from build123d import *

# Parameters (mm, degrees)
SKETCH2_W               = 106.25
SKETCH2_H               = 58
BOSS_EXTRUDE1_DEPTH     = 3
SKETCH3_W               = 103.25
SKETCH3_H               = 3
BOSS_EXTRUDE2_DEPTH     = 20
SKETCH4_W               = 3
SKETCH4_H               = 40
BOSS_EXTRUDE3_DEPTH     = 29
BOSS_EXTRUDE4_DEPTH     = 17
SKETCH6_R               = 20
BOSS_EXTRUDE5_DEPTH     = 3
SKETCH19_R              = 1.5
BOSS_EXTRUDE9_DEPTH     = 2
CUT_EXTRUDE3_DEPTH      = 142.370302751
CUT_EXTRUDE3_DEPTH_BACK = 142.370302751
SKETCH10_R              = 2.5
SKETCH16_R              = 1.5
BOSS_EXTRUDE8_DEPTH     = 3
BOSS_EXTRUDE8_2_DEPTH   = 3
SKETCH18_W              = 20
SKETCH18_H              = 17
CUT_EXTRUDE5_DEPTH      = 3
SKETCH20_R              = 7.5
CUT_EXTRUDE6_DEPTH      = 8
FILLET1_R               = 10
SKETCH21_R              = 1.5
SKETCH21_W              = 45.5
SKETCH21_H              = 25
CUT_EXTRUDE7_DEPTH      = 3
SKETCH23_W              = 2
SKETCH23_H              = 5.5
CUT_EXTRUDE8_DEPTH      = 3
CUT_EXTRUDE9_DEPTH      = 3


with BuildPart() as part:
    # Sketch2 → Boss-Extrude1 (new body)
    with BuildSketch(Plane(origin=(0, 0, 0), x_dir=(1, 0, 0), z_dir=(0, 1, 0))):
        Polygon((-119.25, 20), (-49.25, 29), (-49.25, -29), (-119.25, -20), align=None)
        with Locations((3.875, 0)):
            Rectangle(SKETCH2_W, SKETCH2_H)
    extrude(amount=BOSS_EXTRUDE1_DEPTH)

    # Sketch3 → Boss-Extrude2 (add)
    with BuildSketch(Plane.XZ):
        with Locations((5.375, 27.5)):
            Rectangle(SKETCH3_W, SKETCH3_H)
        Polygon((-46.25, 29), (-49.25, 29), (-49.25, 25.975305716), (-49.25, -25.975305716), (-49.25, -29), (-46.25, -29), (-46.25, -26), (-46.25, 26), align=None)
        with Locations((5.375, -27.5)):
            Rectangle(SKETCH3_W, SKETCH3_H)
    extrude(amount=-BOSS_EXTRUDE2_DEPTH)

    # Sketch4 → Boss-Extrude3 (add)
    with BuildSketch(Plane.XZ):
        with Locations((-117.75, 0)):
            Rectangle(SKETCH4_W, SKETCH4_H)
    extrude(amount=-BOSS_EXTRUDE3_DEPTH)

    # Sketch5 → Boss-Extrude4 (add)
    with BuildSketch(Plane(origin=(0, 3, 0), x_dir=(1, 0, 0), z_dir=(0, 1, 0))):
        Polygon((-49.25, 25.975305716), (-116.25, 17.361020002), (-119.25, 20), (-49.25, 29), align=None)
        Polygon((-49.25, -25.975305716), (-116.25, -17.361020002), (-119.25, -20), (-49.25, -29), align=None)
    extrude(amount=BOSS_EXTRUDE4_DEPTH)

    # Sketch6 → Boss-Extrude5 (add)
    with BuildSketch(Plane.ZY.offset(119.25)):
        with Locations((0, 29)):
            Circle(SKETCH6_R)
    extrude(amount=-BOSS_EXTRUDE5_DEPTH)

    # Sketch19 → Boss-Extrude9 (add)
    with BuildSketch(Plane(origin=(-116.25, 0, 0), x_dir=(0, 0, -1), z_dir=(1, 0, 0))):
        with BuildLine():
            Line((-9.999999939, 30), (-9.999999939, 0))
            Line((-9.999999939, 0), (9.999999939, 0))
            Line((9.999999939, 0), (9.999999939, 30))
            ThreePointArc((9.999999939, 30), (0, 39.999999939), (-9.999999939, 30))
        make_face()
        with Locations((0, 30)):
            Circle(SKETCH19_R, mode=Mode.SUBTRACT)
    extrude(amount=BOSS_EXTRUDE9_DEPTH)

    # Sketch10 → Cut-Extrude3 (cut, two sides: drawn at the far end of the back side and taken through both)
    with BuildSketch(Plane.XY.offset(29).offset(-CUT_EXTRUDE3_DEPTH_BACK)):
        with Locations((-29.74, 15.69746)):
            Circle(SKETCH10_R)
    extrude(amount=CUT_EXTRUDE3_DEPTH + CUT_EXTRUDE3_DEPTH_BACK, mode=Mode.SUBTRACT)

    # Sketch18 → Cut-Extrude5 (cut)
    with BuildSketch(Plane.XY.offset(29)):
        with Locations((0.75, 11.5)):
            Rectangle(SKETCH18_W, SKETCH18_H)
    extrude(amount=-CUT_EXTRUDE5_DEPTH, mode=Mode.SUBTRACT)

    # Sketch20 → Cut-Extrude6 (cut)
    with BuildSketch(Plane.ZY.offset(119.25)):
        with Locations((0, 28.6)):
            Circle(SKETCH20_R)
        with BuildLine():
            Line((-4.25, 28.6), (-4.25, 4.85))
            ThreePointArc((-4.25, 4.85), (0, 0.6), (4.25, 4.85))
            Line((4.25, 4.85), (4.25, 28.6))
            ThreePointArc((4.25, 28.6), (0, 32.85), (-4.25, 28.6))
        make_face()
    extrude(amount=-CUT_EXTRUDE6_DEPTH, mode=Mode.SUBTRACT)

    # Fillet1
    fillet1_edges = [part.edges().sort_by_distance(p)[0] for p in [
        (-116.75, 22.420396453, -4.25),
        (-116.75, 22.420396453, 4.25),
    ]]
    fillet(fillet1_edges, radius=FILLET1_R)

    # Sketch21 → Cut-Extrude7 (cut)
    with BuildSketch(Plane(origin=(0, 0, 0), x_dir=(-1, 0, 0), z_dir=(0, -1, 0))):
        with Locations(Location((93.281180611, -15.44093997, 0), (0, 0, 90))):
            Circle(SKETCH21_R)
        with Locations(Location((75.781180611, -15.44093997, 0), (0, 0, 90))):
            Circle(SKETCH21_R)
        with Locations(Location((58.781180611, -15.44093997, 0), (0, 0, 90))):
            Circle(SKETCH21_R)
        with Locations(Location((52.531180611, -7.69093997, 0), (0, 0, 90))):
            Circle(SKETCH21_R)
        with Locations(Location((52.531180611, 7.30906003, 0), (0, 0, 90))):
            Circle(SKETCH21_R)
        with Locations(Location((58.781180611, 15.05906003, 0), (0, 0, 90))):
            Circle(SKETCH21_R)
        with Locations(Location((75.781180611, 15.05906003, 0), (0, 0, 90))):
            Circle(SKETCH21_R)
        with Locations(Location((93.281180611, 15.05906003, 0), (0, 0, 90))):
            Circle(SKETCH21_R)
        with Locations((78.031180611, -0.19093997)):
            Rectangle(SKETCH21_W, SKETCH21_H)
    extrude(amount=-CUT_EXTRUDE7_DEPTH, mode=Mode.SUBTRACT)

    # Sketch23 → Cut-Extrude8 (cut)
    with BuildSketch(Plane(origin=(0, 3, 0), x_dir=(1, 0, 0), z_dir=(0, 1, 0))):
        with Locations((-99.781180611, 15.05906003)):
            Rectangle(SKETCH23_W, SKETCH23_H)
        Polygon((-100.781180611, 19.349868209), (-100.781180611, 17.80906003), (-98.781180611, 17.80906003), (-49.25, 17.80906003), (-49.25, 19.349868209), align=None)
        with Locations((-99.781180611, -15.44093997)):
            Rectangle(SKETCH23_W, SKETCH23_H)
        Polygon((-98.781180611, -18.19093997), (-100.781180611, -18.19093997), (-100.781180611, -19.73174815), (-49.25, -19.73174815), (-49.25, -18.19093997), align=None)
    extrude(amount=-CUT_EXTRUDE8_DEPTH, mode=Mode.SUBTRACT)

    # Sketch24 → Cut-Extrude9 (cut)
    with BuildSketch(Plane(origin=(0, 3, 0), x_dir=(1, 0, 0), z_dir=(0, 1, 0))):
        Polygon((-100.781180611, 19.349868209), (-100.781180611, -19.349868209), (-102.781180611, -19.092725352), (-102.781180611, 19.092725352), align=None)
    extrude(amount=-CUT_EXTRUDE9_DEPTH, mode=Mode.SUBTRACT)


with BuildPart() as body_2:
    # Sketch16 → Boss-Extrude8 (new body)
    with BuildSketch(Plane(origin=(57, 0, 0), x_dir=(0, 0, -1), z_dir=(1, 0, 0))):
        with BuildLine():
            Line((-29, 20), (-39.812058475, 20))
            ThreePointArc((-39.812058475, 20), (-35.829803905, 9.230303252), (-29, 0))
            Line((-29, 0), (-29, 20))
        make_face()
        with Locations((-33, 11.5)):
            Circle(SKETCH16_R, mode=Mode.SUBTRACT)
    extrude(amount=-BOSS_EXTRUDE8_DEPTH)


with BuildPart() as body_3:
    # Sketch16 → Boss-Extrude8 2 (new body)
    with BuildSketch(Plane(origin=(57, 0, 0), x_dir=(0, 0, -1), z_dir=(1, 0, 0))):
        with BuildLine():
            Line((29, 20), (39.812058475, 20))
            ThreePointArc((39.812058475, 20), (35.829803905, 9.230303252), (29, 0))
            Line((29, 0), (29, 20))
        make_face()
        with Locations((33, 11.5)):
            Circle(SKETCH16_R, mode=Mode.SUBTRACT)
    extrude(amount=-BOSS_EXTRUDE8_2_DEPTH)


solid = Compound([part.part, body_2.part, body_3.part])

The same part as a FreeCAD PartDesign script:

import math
import FreeCAD as App
import Part
import Sketcher

V = App.Vector


def edges_at(feature, points):
    """Names of the edges that pass closest to the given points."""
    edges = feature.Shape.Edges
    near = lambda p: min(range(len(edges)), key=lambda i: edges[i].distToShape(Part.Vertex(*p))[0])
    return sorted({f"Edge{near(p) + 1}" for p in points})

doc = App.newDocument("Part")
body = doc.addObject("PartDesign::Body", "Body")

# Sketch on XZ plane
sketch1 = body.newObject("Sketcher::SketchObject", "Sketch")
sketch1.AttachmentSupport = (doc.getObject("XZ_Plane"), [""])
sketch1.MapMode = "FlatFace"
sketch1.addGeometry([
    Part.LineSegment(V(-49.25, -29, 0), V(-119.25, -20, 0)),  # 0
    Part.LineSegment(V(-119.25, -20, 0), V(-119.25, 20, 0)),  # 1
    Part.LineSegment(V(-119.25, 20, 0), V(-49.25, 29, 0)),  # 2
    Part.LineSegment(V(-49.25, 29, 0), V(57, 29, 0)),  # 3
    Part.LineSegment(V(57, 29, 0), V(57, -29, 0)),  # 4
    Part.LineSegment(V(57, -29, 0), V(-49.25, -29, 0)),  # 5
], False)
sketch1.addConstraint([
    Sketcher.Constraint("Coincident", 0, 2, 1, 1),
    Sketcher.Constraint("Coincident", 1, 2, 2, 1),
    Sketcher.Constraint("Coincident", 2, 2, 3, 1),
    Sketcher.Constraint("Coincident", 3, 2, 4, 1),
    Sketcher.Constraint("Coincident", 4, 2, 5, 1),
    Sketcher.Constraint("Coincident", 5, 2, 0, 1),
    Sketcher.Constraint("Vertical", 1),
    Sketcher.Constraint("Horizontal", 3),
    Sketcher.Constraint("Vertical", 4),
    Sketcher.Constraint("Horizontal", 5),
    Sketcher.Constraint("Symmetric", 2, 2, 5, 2, -1),
    Sketcher.Constraint("Equal", 0, 2),
    Sketcher.Constraint("DistanceY", 1, 1, 1, 2, 40.0),
    Sketcher.Constraint("DistanceY", 4, 2, 4, 1, 58.0),
    Sketcher.Constraint("DistanceX", -1, 1, 3, 2, 57.0),
    Sketcher.Constraint("DistanceX", 1, 2, 2, 2, 70.0),
    Sketcher.Constraint("DistanceX", 3, 1, 3, 2, 106.25),
])
pad1 = body.newObject("PartDesign::Pad", "Pad")
pad1.Profile = sketch1
pad1.Length = 3
pad1.Reversed = True

# Sketch on XZ plane
sketch2 = body.newObject("Sketcher::SketchObject", "Sketch001")
sketch2.AttachmentSupport = (doc.getObject("XZ_Plane"), [""])
sketch2.MapMode = "FlatFace"
sketch2.addGeometry([
    Part.LineSegment(V(-46.25, 26, 0), V(57, 26, 0)),  # 0
    Part.LineSegment(V(57, 26, 0), V(57, 29, 0)),  # 1
    Part.LineSegment(V(57, 29, 0), V(-49.25, 29, 0)),  # 2
    Part.LineSegment(V(-49.25, 29, 0), V(-49.25, -29, 0)),  # 3
    Part.LineSegment(V(-49.25, -29, 0), V(57, -29, 0)),  # 4
    Part.LineSegment(V(57, -29, 0), V(57, -26, 0)),  # 5
    Part.LineSegment(V(57, -26, 0), V(-46.25, -26, 0)),  # 6
    Part.LineSegment(V(-46.25, -26, 0), V(-46.25, 26, 0)),  # 7
], False)
sketch2.addConstraint([
    Sketcher.Constraint("Coincident", 0, 2, 1, 1),
    Sketcher.Constraint("Coincident", 1, 2, 2, 1),
    Sketcher.Constraint("Coincident", 2, 2, 3, 1),
    Sketcher.Constraint("Coincident", 3, 2, 4, 1),
    Sketcher.Constraint("Coincident", 4, 2, 5, 1),
    Sketcher.Constraint("Coincident", 5, 2, 6, 1),
    Sketcher.Constraint("Coincident", 6, 2, 7, 1),
    Sketcher.Constraint("Coincident", 7, 2, 0, 1),
    Sketcher.Constraint("Horizontal", 0),
    Sketcher.Constraint("Vertical", 1),
    Sketcher.Constraint("Horizontal", 2),
    Sketcher.Constraint("Vertical", 3),
    Sketcher.Constraint("Horizontal", 4),
    Sketcher.Constraint("Vertical", 5),
    Sketcher.Constraint("Horizontal", 6),
    Sketcher.Constraint("Vertical", 7),
    Sketcher.Constraint("Symmetric", 1, 2, 4, 2, -1),
    Sketcher.Constraint("Equal", 1, 5),
    Sketcher.Constraint("DistanceY", 1, 1, 1, 2, 3.0),
    Sketcher.Constraint("DistanceY", 3, 2, 3, 1, 58.0),
    Sketcher.Constraint("DistanceX", -1, 1, 0, 2, 57.0),
    Sketcher.Constraint("DistanceX", 3, 2, 6, 2, 3.0),
    Sketcher.Constraint("DistanceX", 0, 1, 0, 2, 103.25),
])
pad2 = body.newObject("PartDesign::Pad", "Pad001")
pad2.Profile = sketch2
pad2.Length = 20
pad2.Reversed = True

# Sketch on XZ plane
sketch3 = body.newObject("Sketcher::SketchObject", "Sketch002")
sketch3.AttachmentSupport = (doc.getObject("XZ_Plane"), [""])
sketch3.MapMode = "FlatFace"
sketch3.addGeometry([
    Part.LineSegment(V(-119.25, 20, 0), V(-119.25, -20, 0)),
    Part.LineSegment(V(-119.25, -20, 0), V(-116.25, -20, 0)),
    Part.LineSegment(V(-116.25, -20, 0), V(-116.25, 20, 0)),
    Part.LineSegment(V(-116.25, 20, 0), V(-119.25, 20, 0)),
], False)
sketch3.addConstraint([
    Sketcher.Constraint("Coincident", 0, 2, 1, 1),
    Sketcher.Constraint("Coincident", 1, 2, 2, 1),
    Sketcher.Constraint("Coincident", 2, 2, 3, 1),
    Sketcher.Constraint("Coincident", 3, 2, 0, 1),
    Sketcher.Constraint("Vertical", 0),
    Sketcher.Constraint("Horizontal", 1),
    Sketcher.Constraint("Vertical", 2),
    Sketcher.Constraint("Horizontal", 3),
    Sketcher.Constraint("DistanceX", 1, 1, 1, 2, 3.0),
    Sketcher.Constraint("DistanceY", 0, 2, 0, 1, 40.0),
    Sketcher.Constraint("DistanceY", 0, 2, -1, 1, 20.0),
    Sketcher.Constraint("DistanceX", 0, 2, -1, 1, 119.25),
])
pad3 = body.newObject("PartDesign::Pad", "Pad002")
pad3.Profile = sketch3
pad3.Length = 29
pad3.Reversed = True

# Sketch on XZ plane
sketch4 = body.newObject("Sketcher::SketchObject", "Sketch003")
sketch4.AttachmentSupport = (doc.getObject("XZ_Plane"), [""])
sketch4.MapMode = "FlatFace"
sketch4.AttachmentOffset = App.Placement(V(0, 0, -3), App.Rotation())
sketch4.addGeometry([
    Part.LineSegment(V(-116.25, -17.36102, 0), V(-49.25, -25.975306, 0)),  # 0
    Part.LineSegment(V(-49.25, -25.975306, 0), V(-49.25, -29, 0)),  # 1
    Part.LineSegment(V(-49.25, -29, 0), V(-119.25, -20, 0)),  # 2
    Part.LineSegment(V(-119.25, -20, 0), V(-116.25, -17.36102, 0)),  # 3
    Part.LineSegment(V(-49.25, 25.975306, 0), V(-116.25, 17.36102, 0)),  # 4
    Part.LineSegment(V(-116.25, 17.36102, 0), V(-119.25, 20, 0)),  # 5
    Part.LineSegment(V(-119.25, 20, 0), V(-49.25, 29, 0)),  # 6
    Part.LineSegment(V(-49.25, 29, 0), V(-49.25, 25.975306, 0)),  # 7
], False)
sketch4.addConstraint([
    Sketcher.Constraint("Coincident", 0, 2, 1, 1),
    Sketcher.Constraint("Coincident", 1, 2, 2, 1),
    Sketcher.Constraint("Coincident", 2, 2, 3, 1),
    Sketcher.Constraint("Coincident", 3, 2, 0, 1),
    Sketcher.Constraint("Coincident", 4, 2, 5, 1),
    Sketcher.Constraint("Coincident", 5, 2, 6, 1),
    Sketcher.Constraint("Coincident", 6, 2, 7, 1),
    Sketcher.Constraint("Coincident", 7, 2, 4, 1),
    Sketcher.Constraint("Vertical", 1),
    Sketcher.Constraint("Vertical", 7),
    Sketcher.Constraint("Symmetric", 3, 2, 4, 2, -1),
    Sketcher.Constraint("Symmetric", 2, 2, 5, 2, -1),
    Sketcher.Constraint("Symmetric", 1, 2, 6, 2, -1),
    Sketcher.Constraint("Parallel", 0, 2),
    Sketcher.Constraint("Parallel", 4, 6),
    Sketcher.Constraint("DistanceY", 1, 2, -1, 1, 29.0),
    Sketcher.Constraint("DistanceY", 2, 2, -1, 1, 20.0),
    Sketcher.Constraint("DistanceX", 2, 2, 0, 2, 70.0),
    Sketcher.Constraint("DistanceX", 2, 2, 3, 2, 3.0),
    Sketcher.Constraint("DistanceX", 0, 2, -1, 1, 49.25),
    Sketcher.Constraint("DistanceY", 1, 2, 1, 1, 3.024694),
])
pad4 = body.newObject("PartDesign::Pad", "Pad003")
pad4.Profile = sketch4
pad4.Length = 17
pad4.Reversed = True

# Sketch on YZ plane
sketch5 = body.newObject("Sketcher::SketchObject", "Sketch004")
sketch5.AttachmentSupport = (doc.getObject("YZ_Plane"), [""])
sketch5.MapMode = "FlatFace"
sketch5.AttachmentOffset = App.Placement(V(0, 0, -119.25), App.Rotation())
sketch5.addGeometry(Part.Circle(V(29, 0, 0), V(0, 0, 1), 20), False)
sketch5.addConstraint([
    Sketcher.Constraint("PointOnObject", 0, 3, -1),
    Sketcher.Constraint("Diameter", 0, 40.0),
    Sketcher.Constraint("DistanceX", -1, 1, 0, 3, 29.0),
])
pad5 = body.newObject("PartDesign::Pad", "Pad004")
pad5.Profile = sketch5
pad5.Length = 3

# Sketch on YZ plane
sketch6 = body.newObject("Sketcher::SketchObject", "Sketch005")
sketch6.AttachmentSupport = (doc.getObject("YZ_Plane"), [""])
sketch6.MapMode = "FlatFace"
sketch6.AttachmentOffset = App.Placement(V(0, 0, -116.25), App.Rotation())
sketch6.addGeometry([
    Part.LineSegment(V(30, 10, 0), V(0, 10, 0)),  # 0
    Part.LineSegment(V(0, 10, 0), V(0, -10, 0)),  # 1
    Part.LineSegment(V(0, -10, 0), V(30, -10, 0)),  # 2
    Part.ArcOfCircle(Part.Circle(V(30, 0, 0), V(0, 0, 1), 10), math.radians(-90), math.radians(90)),  # 3
    Part.Circle(V(30, 0, 0), V(0, 0, 1), 1.5),  # 4
], False)
sketch6.addConstraint([
    Sketcher.Constraint("Coincident", 0, 2, 1, 1),
    Sketcher.Constraint("Coincident", 1, 2, 2, 1),
    Sketcher.Constraint("Tangent", 2, 2, 3, 1),
    Sketcher.Constraint("Tangent", 3, 2, 0, 1),
    Sketcher.Constraint("Horizontal", 0),
    Sketcher.Constraint("Vertical", 1),
    Sketcher.Constraint("Horizontal", 2),
    Sketcher.Constraint("Coincident", 4, 3, 3, 3),
    Sketcher.Constraint("Symmetric", 0, 2, 1, 2, -1, 1),
    Sketcher.Constraint("Diameter", 4, 3.0),
    Sketcher.Constraint("Radius", 3, 10.0),
    Sketcher.Constraint("DistanceX", 0, 2, 0, 1, 30.0),
])
pad6 = body.newObject("PartDesign::Pad", "Pad005")
pad6.Profile = sketch6
pad6.Length = 2

# Sketch on XY plane
sketch7 = body.newObject("Sketcher::SketchObject", "Sketch006")
sketch7.AttachmentSupport = (doc.getObject("XY_Plane"), [""])
sketch7.MapMode = "FlatFace"
sketch7.AttachmentOffset = App.Placement(V(0, 0, 29), App.Rotation())
sketch7.addGeometry(Part.Circle(V(-29.74, 15.69746, 0), V(0, 0, 1), 2.5), False)
sketch7.addConstraint([
    Sketcher.Constraint("Diameter", 0, 5.0),
    Sketcher.Constraint("DistanceX", 0, 3, -1, 1, 29.74),
    Sketcher.Constraint("DistanceY", -1, 1, 0, 3, 15.69746),
])
pocket1 = body.newObject("PartDesign::Pocket", "Pocket")
pocket1.Profile = sketch7
pocket1.Type = "ThroughAll"
pocket1.Midplane = True

# Sketch on XY plane
sketch8 = body.newObject("Sketcher::SketchObject", "Sketch007")
sketch8.AttachmentSupport = (doc.getObject("XY_Plane"), [""])
sketch8.MapMode = "FlatFace"
sketch8.AttachmentOffset = App.Placement(V(0, 0, 29), App.Rotation())
sketch8.addGeometry([
    Part.LineSegment(V(-9.25, 20, 0), V(-9.25, 3, 0)),
    Part.LineSegment(V(-9.25, 3, 0), V(10.75, 3, 0)),
    Part.LineSegment(V(10.75, 3, 0), V(10.75, 20, 0)),
    Part.LineSegment(V(10.75, 20, 0), V(-9.25, 20, 0)),
], False)
sketch8.addConstraint([
    Sketcher.Constraint("Coincident", 0, 2, 1, 1),
    Sketcher.Constraint("Coincident", 1, 2, 2, 1),
    Sketcher.Constraint("Coincident", 2, 2, 3, 1),
    Sketcher.Constraint("Coincident", 3, 2, 0, 1),
    Sketcher.Constraint("Vertical", 0),
    Sketcher.Constraint("Horizontal", 1),
    Sketcher.Constraint("Vertical", 2),
    Sketcher.Constraint("Horizontal", 3),
    Sketcher.Constraint("DistanceX", 1, 1, 1, 2, 20.0),
    Sketcher.Constraint("DistanceY", 0, 2, 0, 1, 17.0),
    Sketcher.Constraint("DistanceY", -1, 1, 0, 2, 3.0),
    Sketcher.Constraint("DistanceX", 0, 2, -1, 1, 9.25),
])
pocket2 = body.newObject("PartDesign::Pocket", "Pocket001")
pocket2.Profile = sketch8
pocket2.Length = 3

# Sketch on YZ plane
sketch9 = body.newObject("Sketcher::SketchObject", "Sketch008")
sketch9.AttachmentSupport = (doc.getObject("YZ_Plane"), [""])
sketch9.MapMode = "FlatFace"
sketch9.AttachmentOffset = App.Placement(V(0, 0, -119.25), App.Rotation())
sketch9.addGeometry([
    Part.ArcOfCircle(Part.Circle(V(28.6, 0, 0), V(0, 0, 1), 7.5), math.radians(-145.481892), math.radians(145.481892)),
    Part.LineSegment(V(22.420396, -4.25, 0), V(4.85, -4.25, 0)),
    Part.ArcOfCircle(Part.Circle(V(4.85, 0, 0), V(0, 0, 1), 4.25), math.radians(90), math.radians(270)),
    Part.LineSegment(V(4.85, 4.25, 0), V(22.420396, 4.25, 0)),
], False)
sketch9.addConstraint([
    Sketcher.Constraint("Coincident", 0, 1, 1, 1),
    Sketcher.Constraint("Tangent", 1, 2, 2, 2),
    Sketcher.Constraint("Tangent", 2, 1, 3, 1),
    Sketcher.Constraint("Coincident", 3, 2, 0, 2),
    Sketcher.Constraint("Horizontal", 1),
    Sketcher.Constraint("Horizontal", 3),
    Sketcher.Constraint("Symmetric", 0, 1, 3, 2, -1),
    Sketcher.Constraint("Radius", 0, 7.5),
    Sketcher.Constraint("Radius", 2, 4.25),
    Sketcher.Constraint("DistanceX", -1, 1, 0, 3, 28.6),
    Sketcher.Constraint("DistanceX", -1, 1, 2, 3, 4.85),
])
pocket3 = body.newObject("PartDesign::Pocket", "Pocket002")
pocket3.Profile = sketch9
pocket3.Length = 8
pocket3.Reversed = True
doc.recompute()

fillet = body.newObject("PartDesign::Fillet", "Fillet")
fillet.Base = (pocket3, edges_at(pocket3, [(-116.75, 22.42, -4.25), (-116.75, 22.42, 4.25)]))
fillet.Radius = 10

# Sketch on XZ plane
sketch10 = body.newObject("Sketcher::SketchObject", "Sketch009")
sketch10.AttachmentSupport = (doc.getObject("XZ_Plane"), [""])
sketch10.MapMode = "FlatFace"
sketch10.addGeometry([
    Part.Circle(V(-93.281181, 15.44094, 0), V(0, 0, 1), 1.5),  # 0
    Part.Circle(V(-75.781181, 15.44094, 0), V(0, 0, 1), 1.5),  # 1
    Part.Circle(V(-58.781181, 15.44094, 0), V(0, 0, 1), 1.5),  # 2
    Part.Circle(V(-52.531181, 7.69094, 0), V(0, 0, 1), 1.5),  # 3
    Part.Circle(V(-52.531181, -7.30906, 0), V(0, 0, 1), 1.5),  # 4
    Part.Circle(V(-58.781181, -15.05906, 0), V(0, 0, 1), 1.5),  # 5
    Part.Circle(V(-75.781181, -15.05906, 0), V(0, 0, 1), 1.5),  # 6
    Part.Circle(V(-93.281181, -15.05906, 0), V(0, 0, 1), 1.5),  # 7
    Part.LineSegment(V(-55.281181, -12.30906, 0), V(-55.281181, 12.69094, 0)),  # 8
    Part.LineSegment(V(-55.281181, 12.69094, 0), V(-100.781181, 12.69094, 0)),  # 9
    Part.LineSegment(V(-100.781181, 12.69094, 0), V(-100.781181, -12.30906, 0)),  # 10
    Part.LineSegment(V(-100.781181, -12.30906, 0), V(-55.281181, -12.30906, 0)),  # 11
], False)
sketch10.addConstraint([
    Sketcher.Constraint("Coincident", 8, 2, 9, 1),
    Sketcher.Constraint("Coincident", 9, 2, 10, 1),
    Sketcher.Constraint("Coincident", 10, 2, 11, 1),
    Sketcher.Constraint("Coincident", 11, 2, 8, 1),
    Sketcher.Constraint("Vertical", 8),
    Sketcher.Constraint("Horizontal", 9),
    Sketcher.Constraint("Vertical", 10),
    Sketcher.Constraint("Horizontal", 11),
    Sketcher.Constraint("Equal", 0, 1),
    Sketcher.Constraint("Equal", 1, 2),
    Sketcher.Constraint("Equal", 2, 3),
    Sketcher.Constraint("Equal", 3, 4),
    Sketcher.Constraint("Equal", 4, 5),
    Sketcher.Constraint("Equal", 5, 6),
    Sketcher.Constraint("Equal", 6, 7),
    Sketcher.Constraint("Horizontal", 0, 3, 1, 3),
    Sketcher.Constraint("Horizontal", 1, 3, 2, 3),
    Sketcher.Constraint("Horizontal", 5, 3, 6, 3),
    Sketcher.Constraint("Horizontal", 6, 3, 7, 3),
    Sketcher.Constraint("Vertical", 3, 3, 4, 3),
    Sketcher.Constraint("Vertical", 2, 3, 5, 3),
    Sketcher.Constraint("Vertical", 1, 3, 6, 3),
    Sketcher.Constraint("Vertical", 0, 3, 7, 3),
    Sketcher.Constraint("Diameter", 0, 3.0),
    Sketcher.Constraint("DistanceY", 8, 1, 8, 2, 25.0),
    Sketcher.Constraint("DistanceX", 9, 2, 9, 1, 45.5),
    Sketcher.Constraint("DistanceX", 1, 3, 2, 3, 17.0),
    Sketcher.Constraint("DistanceY", 4, 3, 3, 3, 15.0),
    Sketcher.Constraint("DistanceY", 3, 3, 8, 2, 5.0),
    Sketcher.Constraint("DistanceX", 9, 2, 1, 3, 25.0),
    Sketcher.Constraint("DistanceX", 0, 3, 1, 3, 17.5),
    Sketcher.Constraint("DistanceY", 5, 3, 2, 3, 30.5),
    Sketcher.Constraint("DistanceX", 2, 3, 3, 3, 6.25),
    Sketcher.Constraint("DistanceY", 3, 3, 2, 3, 7.75),
    Sketcher.Constraint("DistanceX", 0, 3, -1, 1, 93.281181),
    Sketcher.Constraint("DistanceY", -1, 1, 0, 3, 15.44094),
])
pocket4 = body.newObject("PartDesign::Pocket", "Pocket003")
pocket4.Profile = sketch10
pocket4.Length = 3

# Sketch on XZ plane
sketch11 = body.newObject("Sketcher::SketchObject", "Sketch010")
sketch11.AttachmentSupport = (doc.getObject("XZ_Plane"), [""])
sketch11.MapMode = "FlatFace"
sketch11.AttachmentOffset = App.Placement(V(0, 0, -3), App.Rotation())
sketch11.addGeometry([
    Part.LineSegment(V(-100.781181, -12.30906, 0), V(-98.781181, -12.30906, 0)),  # 0
    Part.LineSegment(V(-98.781181, -12.30906, 0), V(-98.781181, -17.80906, 0)),  # 1
    Part.LineSegment(V(-98.781181, -17.80906, 0), V(-49.25, -17.80906, 0)),  # 2
    Part.LineSegment(V(-49.25, -17.80906, 0), V(-49.25, -19.349868, 0)),  # 3
    Part.LineSegment(V(-49.25, -19.349868, 0), V(-100.781181, -19.349868, 0)),  # 4
    Part.LineSegment(V(-100.781181, -19.349868, 0), V(-100.781181, -12.30906, 0)),  # 5
    Part.LineSegment(V(-100.781181, 12.69094, 0), V(-100.781181, 19.731748, 0)),  # 6
    Part.LineSegment(V(-100.781181, 19.731748, 0), V(-49.25, 19.731748, 0)),  # 7
    Part.LineSegment(V(-49.25, 19.731748, 0), V(-49.25, 18.19094, 0)),  # 8
    Part.LineSegment(V(-49.25, 18.19094, 0), V(-98.781181, 18.19094, 0)),  # 9
    Part.LineSegment(V(-98.781181, 18.19094, 0), V(-98.781181, 12.69094, 0)),  # 10
    Part.LineSegment(V(-98.781181, 12.69094, 0), V(-100.781181, 12.69094, 0)),  # 11
], False)
sketch11.addConstraint([
    Sketcher.Constraint("Coincident", 0, 2, 1, 1),
    Sketcher.Constraint("Coincident", 1, 2, 2, 1),
    Sketcher.Constraint("Coincident", 2, 2, 3, 1),
    Sketcher.Constraint("Coincident", 3, 2, 4, 1),
    Sketcher.Constraint("Coincident", 4, 2, 5, 1),
    Sketcher.Constraint("Coincident", 5, 2, 0, 1),
    Sketcher.Constraint("Coincident", 6, 2, 7, 1),
    Sketcher.Constraint("Coincident", 7, 2, 8, 1),
    Sketcher.Constraint("Coincident", 8, 2, 9, 1),
    Sketcher.Constraint("Coincident", 9, 2, 10, 1),
    Sketcher.Constraint("Coincident", 10, 2, 11, 1),
    Sketcher.Constraint("Coincident", 11, 2, 6, 1),
    Sketcher.Constraint("Horizontal", 0),
    Sketcher.Constraint("Vertical", 1),
    Sketcher.Constraint("Horizontal", 2),
    Sketcher.Constraint("Vertical", 3),
    Sketcher.Constraint("Horizontal", 4),
    Sketcher.Constraint("Vertical", 5),
    Sketcher.Constraint("Vertical", 6),
    Sketcher.Constraint("Horizontal", 7),
    Sketcher.Constraint("Vertical", 8),
    Sketcher.Constraint("Horizontal", 9),
    Sketcher.Constraint("Vertical", 10),
    Sketcher.Constraint("Horizontal", 11),
    Sketcher.Constraint("Vertical", 5, 2, 6, 2),
    Sketcher.Constraint("Vertical", 3, 2, 7, 2),
    Sketcher.Constraint("Vertical", 1, 2, 9, 2),
    Sketcher.Constraint("Equal", 5, 6),
    Sketcher.Constraint("Equal", 3, 8),
    Sketcher.Constraint("DistanceX", 0, 1, 0, 2, 2.0),
    Sketcher.Constraint("DistanceY", 1, 2, 1, 1, 5.5),
    Sketcher.Constraint("DistanceY", 2, 2, 8, 2, 36.0),
    Sketcher.Constraint("DistanceX", 2, 2, -1, 1, 49.25),
    Sketcher.Constraint("DistanceX", 2, 1, 2, 2, 49.531181),
    Sketcher.Constraint("DistanceY", 3, 2, 3, 1, 1.540808),
    Sketcher.Constraint("DistanceY", 0, 2, -1, 1, 12.30906),
])
pocket5 = body.newObject("PartDesign::Pocket", "Pocket004")
pocket5.Profile = sketch11
pocket5.Length = 3
pocket5.Reversed = True

# Sketch on XZ plane
sketch12 = body.newObject("Sketcher::SketchObject", "Sketch011")
sketch12.AttachmentSupport = (doc.getObject("XZ_Plane"), [""])
sketch12.MapMode = "FlatFace"
sketch12.AttachmentOffset = App.Placement(V(0, 0, -3), App.Rotation())
sketch12.addGeometry([
    Part.LineSegment(V(-100.781181, 19.349868, 0), V(-100.781181, -19.349868, 0)),
    Part.LineSegment(V(-100.781181, -19.349868, 0), V(-102.781181, -19.092725, 0)),
    Part.LineSegment(V(-102.781181, -19.092725, 0), V(-102.781181, 19.092725, 0)),
    Part.LineSegment(V(-102.781181, 19.092725, 0), V(-100.781181, 19.349868, 0)),
], False)
sketch12.addConstraint([
    Sketcher.Constraint("Coincident", 0, 2, 1, 1),
    Sketcher.Constraint("Coincident", 1, 2, 2, 1),
    Sketcher.Constraint("Coincident", 2, 2, 3, 1),
    Sketcher.Constraint("Coincident", 3, 2, 0, 1),
    Sketcher.Constraint("Vertical", 0),
    Sketcher.Constraint("Vertical", 2),
    Sketcher.Constraint("Equal", 1, 3),
    Sketcher.Constraint("DistanceX", 1, 2, 0, 2, 2.0),
    Sketcher.Constraint("DistanceY", 2, 1, 2, 2, 38.185451),
    Sketcher.Constraint("DistanceY", 0, 2, 0, 1, 38.699736),
    Sketcher.Constraint("DistanceX", 0, 2, -1, 1, 100.781181),
    Sketcher.Constraint("DistanceY", 0, 2, -1, 1, 19.349868),
])
pocket6 = body.newObject("PartDesign::Pocket", "Pocket005")
pocket6.Profile = sketch12
pocket6.Length = 3
pocket6.Reversed = True
body2 = doc.addObject("PartDesign::Body", "Body001")

# Sketch on YZ plane
sketch13 = body2.newObject("Sketcher::SketchObject", "Sketch012")
sketch13.AttachmentSupport = (doc.getObject("YZ_Plane001"), [""])
sketch13.MapMode = "FlatFace"
sketch13.AttachmentOffset = App.Placement(V(0, 0, 57), App.Rotation())
sketch13.addGeometry([
    Part.LineSegment(V(20, 29, 0), V(20, 39.812058, 0)),
    Part.ArcOfCircle(Part.Circle(V(28.6, 0, 0), V(0, 0, 1), 40.730333), math.radians(102.189452), math.radians(134.602119)),
    Part.LineSegment(V(0, 29, 0), V(20, 29, 0)),
    Part.Circle(V(11.5, 33, 0), V(0, 0, 1), 1.5),
], False)
sketch13.addConstraint([
    Sketcher.Constraint("Coincident", 0, 2, 1, 1),
    Sketcher.Constraint("Coincident", 1, 2, 2, 1),
    Sketcher.Constraint("Coincident", 2, 2, 0, 1),
    Sketcher.Constraint("Vertical", 0),
    Sketcher.Constraint("Horizontal", 2),
    Sketcher.Constraint("PointOnObject", 1, 3, -1),
    Sketcher.Constraint("PointOnObject", 1, 2, -2),
    Sketcher.Constraint("Diameter", 3, 3.0),
    Sketcher.Constraint("DistanceX", 2, 1, 2, 2, 20.0),
    Sketcher.Constraint("DistanceY", -1, 1, 3, 3, 33.0),
    Sketcher.Constraint("DistanceY", -1, 1, 1, 2, 29.0),
    Sketcher.Constraint("DistanceX", -1, 1, 1, 3, 28.6),
    Sketcher.Constraint("DistanceX", -1, 1, 3, 3, 11.5),
])
pad7 = body2.newObject("PartDesign::Pad", "Pad006")
pad7.Profile = sketch13
pad7.Length = 3
pad7.Reversed = True
body3 = doc.addObject("PartDesign::Body", "Body002")

# Sketch on YZ plane
sketch14 = body3.newObject("Sketcher::SketchObject", "Sketch013")
sketch14.AttachmentSupport = (doc.getObject("YZ_Plane002"), [""])
sketch14.MapMode = "FlatFace"
sketch14.AttachmentOffset = App.Placement(V(0, 0, 57), App.Rotation())
sketch14.addGeometry([
    Part.LineSegment(V(20, -39.812058, 0), V(20, -29, 0)),
    Part.LineSegment(V(20, -29, 0), V(0, -29, 0)),
    Part.ArcOfCircle(Part.Circle(V(28.6, 0, 0), V(0, 0, 1), 40.730333), math.radians(-134.602119), math.radians(-102.189452)),
    Part.Circle(V(11.5, -33, 0), V(0, 0, 1), 1.5),
], False)
sketch14.addConstraint([
    Sketcher.Constraint("Coincident", 0, 2, 1, 1),
    Sketcher.Constraint("Coincident", 1, 2, 2, 1),
    Sketcher.Constraint("Coincident", 2, 2, 0, 1),
    Sketcher.Constraint("Vertical", 0),
    Sketcher.Constraint("Horizontal", 1),
    Sketcher.Constraint("PointOnObject", 2, 3, -1),
    Sketcher.Constraint("PointOnObject", 1, 2, -2),
    Sketcher.Constraint("Diameter", 3, 3.0),
    Sketcher.Constraint("DistanceX", 1, 2, 1, 1, 20.0),
    Sketcher.Constraint("DistanceY", 3, 3, -1, 1, 33.0),
    Sketcher.Constraint("DistanceY", 0, 2, -1, 1, 29.0),
    Sketcher.Constraint("DistanceX", -1, 1, 2, 3, 28.6),
    Sketcher.Constraint("DistanceX", -1, 1, 3, 3, 11.5),
])
pad8 = body3.newObject("PartDesign::Pad", "Pad007")
pad8.Profile = sketch14
pad8.Length = 3
pad8.Reversed = True

doc.recompute()
